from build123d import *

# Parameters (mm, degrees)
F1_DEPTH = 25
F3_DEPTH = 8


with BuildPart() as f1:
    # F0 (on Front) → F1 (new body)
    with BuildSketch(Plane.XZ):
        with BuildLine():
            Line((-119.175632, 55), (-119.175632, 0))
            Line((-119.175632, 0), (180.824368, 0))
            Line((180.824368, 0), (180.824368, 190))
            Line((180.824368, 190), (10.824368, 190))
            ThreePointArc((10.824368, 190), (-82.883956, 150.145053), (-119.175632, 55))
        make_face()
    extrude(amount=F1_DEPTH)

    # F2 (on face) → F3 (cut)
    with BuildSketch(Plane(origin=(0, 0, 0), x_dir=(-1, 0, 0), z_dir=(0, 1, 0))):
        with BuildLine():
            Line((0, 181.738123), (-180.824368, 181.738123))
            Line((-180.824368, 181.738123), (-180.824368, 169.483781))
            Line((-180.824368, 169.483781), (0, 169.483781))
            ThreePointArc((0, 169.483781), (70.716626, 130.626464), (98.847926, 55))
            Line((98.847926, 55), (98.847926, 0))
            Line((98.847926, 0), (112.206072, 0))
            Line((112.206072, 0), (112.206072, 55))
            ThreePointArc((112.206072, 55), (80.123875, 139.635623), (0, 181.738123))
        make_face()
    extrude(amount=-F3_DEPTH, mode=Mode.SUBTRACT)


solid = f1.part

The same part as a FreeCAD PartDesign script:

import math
import FreeCAD as App
import Part
import Sketcher
Q = App.Units.Quantity

doc = App.newDocument("Part")
body = doc.addObject("PartDesign::Body", "Body")

sketch1 = body.newObject("Sketcher::SketchObject", "Sketch")
sketch1.AttachmentSupport = (doc.getObject("XZ_Plane"), [""])
sketch1.MapMode = "FlatFace"
sketch1.addGeometry(Part.LineSegment(App.Vector(-119.175632, 55, 0), App.Vector(-119.175632, 0, 0)), False)
sketch1.addGeometry(Part.LineSegment(App.Vector(-119.175632, 0, 0), App.Vector(180.824368, 0, 0)), False)
sketch1.addGeometry(Part.LineSegment(App.Vector(180.824368, 0, 0), App.Vector(180.824368, 190, 0)), False)
sketch1.addGeometry(Part.LineSegment(App.Vector(180.824368, 190, 0), App.Vector(10.824368, 190, 0)), False)
sketch1.addGeometry(Part.ArcOfCircle(Part.Circle(App.Vector(10.824368, 59.907408, 0), App.Vector(0, 0, 1), 130.092592), math.radians(90), math.radians(182.161848)), False)
sketch1.addConstraint(Sketcher.Constraint("Coincident", 0, 2, 1, 1))
sketch1.addConstraint(Sketcher.Constraint("Coincident", 1, 2, 2, 1))
sketch1.addConstraint(Sketcher.Constraint("Coincident", 2, 2, 3, 1))
sketch1.addConstraint(Sketcher.Constraint("Tangent", 3, 2, 4, 1))
sketch1.addConstraint(Sketcher.Constraint("Coincident", 4, 2, 0, 1))
sketch1.addConstraint(Sketcher.Constraint("Vertical", 0))
sketch1.addConstraint(Sketcher.Constraint("Horizontal", 1))
sketch1.addConstraint(Sketcher.Constraint("Vertical", 2))
sketch1.addConstraint(Sketcher.Constraint("Horizontal", 3))
sketch1.addConstraint(Sketcher.Constraint("PointOnObject", 0, 2, -1))
sketch1.addConstraint(Sketcher.Constraint("DistanceX", 1, 1, 1, 2, Q("300 mm")))
sketch1.addConstraint(Sketcher.Constraint("DistanceX", 3, 2, 3, 1, Q("170 mm")))
sketch1.addConstraint(Sketcher.Constraint("DistanceY", 0, 2, 0, 1, Q("55 mm")))
sketch1.addConstraint(Sketcher.Constraint("DistanceY", 2, 1, 2, 2, Q("190 mm")))
sketch1.addConstraint(Sketcher.Constraint("DistanceX", 0, 2, -1, 1, Q("119.175632 mm")))
pad1 = body.newObject("PartDesign::Pad", "Pad")
pad1.Profile = sketch1
pad1.Length = 25

sketch2 = body.newObject("Sketcher::SketchObject", "Sketch001")
sketch2.AttachmentSupport = (doc.getObject("XZ_Plane"), [""])
sketch2.MapMode = "FlatFace"
sketch2.addGeometry(Part.LineSegment(App.Vector(0, 181.738123, 0), App.Vector(180.824368, 181.738123, 0)), False)
sketch2.addGeometry(Part.LineSegment(App.Vector(180.824368, 181.738123, 0), App.Vector(180.824368, 169.483781, 0)), False)
sketch2.addGeometry(Part.LineSegment(App.Vector(180.824368, 169.483781, 0), App.Vector(0, 169.483781, 0)), False)
sketch2.addGeometry(Part.ArcOfCircle(Part.Circle(App.Vector(16.872503, 54.999999, 0), App.Vector(0, 0, 1), 115.720429), math.radians(98.38384), math.radians(180)), False)
sketch2.addGeometry(Part.LineSegment(App.Vector(-98.847926, 55, 0), App.Vector(-98.847926, 0, 0)), False)
sketch2.addGeometry(Part.LineSegment(App.Vector(-98.847926, 0, 0), App.Vector(-112.206072, 0, 0)), False)
sketch2.addGeometry(Part.LineSegment(App.Vector(-112.206072, 0, 0), App.Vector(-112.206072, 55, 0)), False)
sketch2.addGeometry(Part.ArcOfCircle(Part.Circle(App.Vector(15.47309, 55, 0), App.Vector(0, 0, 1), 127.679162), math.radians(96.960628), math.radians(180)), False)
sketch2.addConstraint(Sketcher.Constraint("Coincident", 0, 2, 1, 1))
sketch2.addConstraint(Sketcher.Constraint("Coincident", 1, 2, 2, 1))
sketch2.addConstraint(Sketcher.Constraint("Coincident", 2, 2, 3, 1))
sketch2.addConstraint(Sketcher.Constraint("Tangent", 3, 2, 4, 1))
sketch2.addConstraint(Sketcher.Constraint("Coincident", 4, 2, 5, 1))
sketch2.addConstraint(Sketcher.Constraint("Coincident", 5, 2, 6, 1))
sketch2.addConstraint(Sketcher.Constraint("Tangent", 6, 2, 7, 2))
sketch2.addConstraint(Sketcher.Constraint("Coincident", 7, 1, 0, 1))
sketch2.addConstraint(Sketcher.Constraint("Horizontal", 0))
sketch2.addConstraint(Sketcher.Constraint("Vertical", 1))
sketch2.addConstraint(Sketcher.Constraint("Horizontal", 2))
sketch2.addConstraint(Sketcher.Constraint("Vertical", 4))
sketch2.addConstraint(Sketcher.Constraint("Horizontal", 5))
sketch2.addConstraint(Sketcher.Constraint("Vertical", 6))
sketch2.addConstraint(Sketcher.Constraint("PointOnObject", 2, 2, -2))
sketch2.addConstraint(Sketcher.Constraint("PointOnObject", 4, 2, -1))
sketch2.addConstraint(Sketcher.Constraint("PointOnObject", 7, 1, -2))
sketch2.addConstraint(Sketcher.Constraint("Horizontal", 3, 3, 7, 3))
sketch2.addConstraint(Sketcher.Constraint("DistanceY", 4, 2, 4, 1, Q("55 mm")))
sketch2.addConstraint(Sketcher.Constraint("Radius", 3, Q("115.720429 mm")))
sketch2.addConstraint(Sketcher.Constraint("Radius", 7, Q("127.679162 mm")))
sketch2.addConstraint(Sketcher.Constraint("DistanceX", 0, 1, 0, 2, Q("180.824368 mm")))
sketch2.addConstraint(Sketcher.Constraint("DistanceX", 5, 2, 5, 1, Q("13.358146 mm")))
sketch2.addConstraint(Sketcher.Constraint("DistanceY", 1, 2, 1, 1, Q("12.254342 mm")))
pocket1 = body.newObject("PartDesign::Pocket", "Pocket")
pocket1.Profile = sketch2
pocket1.Length = 8
pocket1.Reversed = True

doc.recompute()
